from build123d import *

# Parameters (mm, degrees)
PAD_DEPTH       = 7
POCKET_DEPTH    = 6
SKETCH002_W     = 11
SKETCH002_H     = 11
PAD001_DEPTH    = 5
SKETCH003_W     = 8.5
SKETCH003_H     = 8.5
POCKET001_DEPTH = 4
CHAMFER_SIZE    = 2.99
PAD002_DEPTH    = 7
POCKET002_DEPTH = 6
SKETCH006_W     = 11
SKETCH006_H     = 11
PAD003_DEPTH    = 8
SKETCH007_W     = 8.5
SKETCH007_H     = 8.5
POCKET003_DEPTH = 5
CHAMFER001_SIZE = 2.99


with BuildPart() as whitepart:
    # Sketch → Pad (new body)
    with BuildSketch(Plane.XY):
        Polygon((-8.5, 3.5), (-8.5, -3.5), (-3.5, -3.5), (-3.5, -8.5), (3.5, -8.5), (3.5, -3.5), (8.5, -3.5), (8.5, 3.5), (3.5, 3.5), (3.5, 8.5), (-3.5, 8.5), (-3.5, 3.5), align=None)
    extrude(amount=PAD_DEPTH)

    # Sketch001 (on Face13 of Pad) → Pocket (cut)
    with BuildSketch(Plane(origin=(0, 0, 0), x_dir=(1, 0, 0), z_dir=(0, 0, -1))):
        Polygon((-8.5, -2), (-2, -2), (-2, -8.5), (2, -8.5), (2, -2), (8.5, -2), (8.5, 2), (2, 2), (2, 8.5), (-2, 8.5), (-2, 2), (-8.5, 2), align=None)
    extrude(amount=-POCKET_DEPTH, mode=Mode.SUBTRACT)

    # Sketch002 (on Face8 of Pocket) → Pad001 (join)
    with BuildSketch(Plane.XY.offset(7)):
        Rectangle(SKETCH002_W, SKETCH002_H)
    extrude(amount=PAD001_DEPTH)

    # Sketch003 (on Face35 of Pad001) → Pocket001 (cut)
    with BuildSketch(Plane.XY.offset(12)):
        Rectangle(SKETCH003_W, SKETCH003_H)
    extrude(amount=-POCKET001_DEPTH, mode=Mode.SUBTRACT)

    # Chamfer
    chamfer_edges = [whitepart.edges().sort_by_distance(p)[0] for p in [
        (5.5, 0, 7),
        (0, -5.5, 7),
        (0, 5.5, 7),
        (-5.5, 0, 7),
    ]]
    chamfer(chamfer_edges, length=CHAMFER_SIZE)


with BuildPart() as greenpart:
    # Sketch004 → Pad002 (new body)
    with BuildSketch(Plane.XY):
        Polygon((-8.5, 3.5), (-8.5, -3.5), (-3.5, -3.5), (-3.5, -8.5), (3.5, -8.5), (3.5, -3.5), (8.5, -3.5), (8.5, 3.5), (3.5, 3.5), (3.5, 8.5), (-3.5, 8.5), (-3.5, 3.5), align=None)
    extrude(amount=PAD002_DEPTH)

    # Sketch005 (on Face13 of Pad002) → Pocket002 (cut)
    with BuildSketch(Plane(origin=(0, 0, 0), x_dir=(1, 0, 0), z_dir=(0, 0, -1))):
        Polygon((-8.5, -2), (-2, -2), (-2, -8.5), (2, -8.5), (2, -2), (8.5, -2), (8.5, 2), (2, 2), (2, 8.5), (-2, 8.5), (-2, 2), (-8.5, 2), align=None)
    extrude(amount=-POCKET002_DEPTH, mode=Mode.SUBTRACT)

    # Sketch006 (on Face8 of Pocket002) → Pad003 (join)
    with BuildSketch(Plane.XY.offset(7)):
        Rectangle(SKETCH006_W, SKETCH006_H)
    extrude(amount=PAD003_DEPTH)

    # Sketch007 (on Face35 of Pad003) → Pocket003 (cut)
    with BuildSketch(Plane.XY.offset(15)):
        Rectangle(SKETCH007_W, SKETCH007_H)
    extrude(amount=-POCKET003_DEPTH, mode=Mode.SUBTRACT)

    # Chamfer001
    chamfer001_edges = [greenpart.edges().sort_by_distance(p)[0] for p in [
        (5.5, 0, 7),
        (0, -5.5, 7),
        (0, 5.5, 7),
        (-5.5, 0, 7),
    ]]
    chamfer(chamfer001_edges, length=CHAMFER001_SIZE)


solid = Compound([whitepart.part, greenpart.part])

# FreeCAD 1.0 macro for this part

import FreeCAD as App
import Part
import Sketcher
from FreeCAD import Vector
Q = App.Units.Quantity


def edges_at(feature, points):
    """Names of the edges that pass closest to the given points."""
    edges = feature.Shape.Edges
    near = lambda p: min(range(len(edges)), key=lambda i: edges[i].distToShape(Part.Vertex(*p))[0])
    return sorted({f"Edge{near(p) + 1}" for p in points})


def add_polygon(sketch, points):
    """Adds a closed chain of lines whose ends are joined by coincident constraints."""
    first, n = sketch.GeometryCount, len(points)
    for a, b in zip(points, points[1:] + points[:1]):
        sketch.addGeometry(Part.LineSegment(App.Vector(*a, 0), App.Vector(*b, 0)), False)
    for i in range(n):
        sketch.addConstraint(Sketcher.Constraint("Coincident", first + i, 2, first + (i + 1) % n, 1))

doc = App.newDocument("Part")
params = doc.addObject("Spreadsheet::Sheet", "Params")
for row, (alias, value) in enumerate([
    ("sketch1_width", "5 mm"),
    ("sketch1_width2", "7 mm"),
    ("pad1_length", "7 mm"),
    ("sketch2_width", "4 mm"),
    ("sketch2_width2", "6.5 mm"),
    ("pocket1_length", "6 mm"),
    ("sketch3_width", "11 mm"),
    ("pad2_length", "5 mm"),
    ("sketch4_width", "8.5 mm"),
    ("pocket2_length", "4 mm"),
    ("chamfer_size", "2.99 mm"),
    ("sketch5_width", "5 mm"),
    ("sketch5_width2", "7 mm"),
    ("pad3_length", "7 mm"),
    ("sketch6_width", "4 mm"),
    ("sketch6_width2", "6.5 mm"),
    ("pocket3_length", "6 mm"),
    ("sketch7_width", "11 mm"),
    ("pad4_length", "8 mm"),
    ("sketch8_width", "8.5 mm"),
    ("pocket4_length", "5 mm"),
    ("chamfer2_size", "2.99 mm"),
], start=1):
    params.set(f"A{row}", alias)
    params.set(f"B{row}", "=" + value)
    params.setAlias(f"B{row}", alias)

body = doc.addObject("PartDesign::Body", "Body")

# Sketch on XY plane
sketch1 = body.newObject("Sketcher::SketchObject", "Sketch")
sketch1.AttachmentSupport = (doc.getObject("XY_Plane"), [""])
sketch1.MapMode = "FlatFace"
add_polygon(sketch1, [(-8, 4), (-8, -4), (-4, -4), (-4, -8), (4, -8), (4, -4), (8, -4), (8, 4), (4, 4), (4, 8), (-4, 8), (-4, 4)])  # lines 0-11
sketch1.addConstraint(Sketcher.Constraint("Vertical", 0))
sketch1.addConstraint(Sketcher.Constraint("Horizontal", 1))
sketch1.addConstraint(Sketcher.Constraint("Vertical", 2))
sketch1.addConstraint(Sketcher.Constraint("Horizontal", 3))
sketch1.addConstraint(Sketcher.Constraint("Vertical", 4))
sketch1.addConstraint(Sketcher.Constraint("Horizontal", 5))
sketch1.addConstraint(Sketcher.Constraint("Vertical", 6))
sketch1.addConstraint(Sketcher.Constraint("Horizontal", 7))
sketch1.addConstraint(Sketcher.Constraint("Vertical", 8))
sketch1.addConstraint(Sketcher.Constraint("Horizontal", 9))
sketch1.addConstraint(Sketcher.Constraint("Vertical", 10))
sketch1.addConstraint(Sketcher.Constraint("Horizontal", 11))
sketch1.addConstraint(Sketcher.Constraint("Symmetric", 0, 2, 6, 2, -1, 1))
sketch1.addConstraint(Sketcher.Constraint("Symmetric", 2, 2, 8, 2, -1, 1))
sketch1.addConstraint(Sketcher.Constraint("Symmetric", 4, 2, 10, 2, -1, 1))
sketch1.addConstraint(Sketcher.Constraint("Symmetric", 1, 2, 4, 2, -2))
sketch1.addConstraint(Sketcher.Constraint("Equal", 9, 0))
sketch1.addConstraint(Sketcher.Constraint("Equal", 11, 2))
sketch1.addConstraint(Sketcher.Constraint("DistanceX", 1, 1, 1, 2, Q("5 mm")))
sketch1.addConstraint(Sketcher.Constraint("DistanceX", 3, 1, 3, 2, Q("7 mm")))
sketch1.setExpression("Constraints[30]", "Params.sketch1_width")
sketch1.setExpression("Constraints[31]", "Params.sketch1_width2")
pad1 = body.newObject("PartDesign::Pad", "Pad")
pad1.Profile = sketch1
pad1.setExpression("Length", "Params.pad1_length")

# Sketch on XY plane
sketch2 = body.newObject("Sketcher::SketchObject", "Sketch001")
sketch2.AttachmentSupport = (doc.getObject("XY_Plane"), [""])
sketch2.MapMode = "FlatFace"
add_polygon(sketch2, [(-8.5, 2), (-2, 2), (-2, 8.5), (2, 8.5), (2, 2), (8.5, 2), (8.5, -2), (2, -2), (2, -8.5), (-2, -8.5), (-2, -2), (-8.5, -2)])  # lines 0-11
sketch2.addConstraint(Sketcher.Constraint("Horizontal", 0))
sketch2.addConstraint(Sketcher.Constraint("Vertical", 1))
sketch2.addConstraint(Sketcher.Constraint("Horizontal", 2))
sketch2.addConstraint(Sketcher.Constraint("Vertical", 3))
sketch2.addConstraint(Sketcher.Constraint("Horizontal", 4))
sketch2.addConstraint(Sketcher.Constraint("Vertical", 5))
sketch2.addConstraint(Sketcher.Constraint("Horizontal", 6))
sketch2.addConstraint(Sketcher.Constraint("Vertical", 7))
sketch2.addConstraint(Sketcher.Constraint("Horizontal", 8))
sketch2.addConstraint(Sketcher.Constraint("Vertical", 9))
sketch2.addConstraint(Sketcher.Constraint("Horizontal", 10))
sketch2.addConstraint(Sketcher.Constraint("Vertical", 11))
sketch2.addConstraint(Sketcher.Constraint("Symmetric", 0, 2, 6, 2, -1, 1))
sketch2.addConstraint(Sketcher.Constraint("Symmetric", 2, 2, 8, 2, -1, 1))
sketch2.addConstraint(Sketcher.Constraint("Symmetric", 4, 2, 10, 2, -1, 1))
sketch2.addConstraint(Sketcher.Constraint("Symmetric", 0, 2, 3, 2, -2))
sketch2.addConstraint(Sketcher.Constraint("Equal", 10, 1))
sketch2.addConstraint(Sketcher.Constraint("Equal", 8, 5))
sketch2.addConstraint(Sketcher.Constraint("DistanceX", 2, 1, 2, 2, Q("4 mm")))
sketch2.addConstraint(Sketcher.Constraint("DistanceX", 0, 1, 0, 2, Q("6.5 mm")))
sketch2.setExpression("Constraints[30]", "Params.sketch2_width")
sketch2.setExpression("Constraints[31]", "Params.sketch2_width2")
pocket1 = body.newObject("PartDesign::Pocket", "Pocket")
pocket1.Profile = sketch2
pocket1.setExpression("Length", "Params.pocket1_length")
pocket1.Reversed = True

# Sketch on XY plane
sketch3 = body.newObject("Sketcher::SketchObject", "Sketch002")
sketch3.AttachmentSupport = (doc.getObject("XY_Plane"), [""])
sketch3.MapMode = "FlatFace"
sketch3.AttachmentOffset = App.Placement(Vector(0, 0, 7), App.Rotation())
add_polygon(sketch3, [(-6, 6), (-6, -6), (6, -6), (6, 6)])  # lines 0-3
sketch3.addConstraint(Sketcher.Constraint("Vertical", 0))
sketch3.addConstraint(Sketcher.Constraint("Horizontal", 1))
sketch3.addConstraint(Sketcher.Constraint("Vertical", 2))
sketch3.addConstraint(Sketcher.Constraint("Horizontal", 3))
sketch3.addConstraint(Sketcher.Constraint("Symmetric", 0, 2, 2, 2, -1, 1))
sketch3.addConstraint(Sketcher.Constraint("Equal", 3, 0))
sketch3.addConstraint(Sketcher.Constraint("DistanceX", 1, 1, 1, 2, Q("11 mm")))
sketch3.setExpression("Constraints[10]", "Params.sketch3_width")
pad2 = body.newObject("PartDesign::Pad", "Pad001")
pad2.Profile = sketch3
pad2.setExpression("Length", "Params.pad2_length")

# Sketch on XY plane
sketch4 = body.newObject("Sketcher::SketchObject", "Sketch003")
sketch4.AttachmentSupport = (doc.getObject("XY_Plane"), [""])
sketch4.MapMode = "FlatFace"
sketch4.AttachmentOffset = App.Placement(Vector(0, 0, 12), App.Rotation())
add_polygon(sketch4, [(-4, 4), (-4, -4), (4, -4), (4, 4)])  # lines 0-3
sketch4.addConstraint(Sketcher.Constraint("Vertical", 0))
sketch4.addConstraint(Sketcher.Constraint("Horizontal", 1))
sketch4.addConstraint(Sketcher.Constraint("Vertical", 2))
sketch4.addConstraint(Sketcher.Constraint("Horizontal", 3))
sketch4.addConstraint(Sketcher.Constraint("Symmetric", 0, 2, 2, 2, -1, 1))
sketch4.addConstraint(Sketcher.Constraint("Equal", 3, 0))
sketch4.addConstraint(Sketcher.Constraint("DistanceX", 1, 1, 1, 2, Q("8.5 mm")))
sketch4.setExpression("Constraints[10]", "Params.sketch4_width")
pocket2 = body.newObject("PartDesign::Pocket", "Pocket001")
pocket2.Profile = sketch4
pocket2.setExpression("Length", "Params.pocket2_length")
doc.recompute()

chamfer = body.newObject("PartDesign::Chamfer", "Chamfer")
chamfer.Base = (pocket2, edges_at(pocket2, [
    (5.5, 0, 7),
    (0, -5.5, 7),
    (0, 5.5, 7),
    (-5.5, 0, 7),
]))
chamfer.setExpression("Size", "Params.chamfer_size")
body2 = doc.addObject("PartDesign::Body", "Body001")

# Sketch on XY plane
sketch5 = body2.newObject("Sketcher::SketchObject", "Sketch004")
sketch5.AttachmentSupport = (doc.getObject("XY_Plane001"), [""])
sketch5.MapMode = "FlatFace"
add_polygon(sketch5, [(-8, 4), (-8, -4), (-4, -4), (-4, -8), (4, -8), (4, -4), (8, -4), (8, 4), (4, 4), (4, 8), (-4, 8), (-4, 4)])  # lines 0-11
sketch5.addConstraint(Sketcher.Constraint("Vertical", 0))
sketch5.addConstraint(Sketcher.Constraint("Horizontal", 1))
sketch5.addConstraint(Sketcher.Constraint("Vertical", 2))
sketch5.addConstraint(Sketcher.Constraint("Horizontal", 3))
sketch5.addConstraint(Sketcher.Constraint("Vertical", 4))
sketch5.addConstraint(Sketcher.Constraint("Horizontal", 5))
sketch5.addConstraint(Sketcher.Constraint("Vertical", 6))
sketch5.addConstraint(Sketcher.Constraint("Horizontal", 7))
sketch5.addConstraint(Sketcher.Constraint("Vertical", 8))
sketch5.addConstraint(Sketcher.Constraint("Horizontal", 9))
sketch5.addConstraint(Sketcher.Constraint("Vertical", 10))
sketch5.addConstraint(Sketcher.Constraint("Horizontal", 11))
sketch5.addConstraint(Sketcher.Constraint("Symmetric", 0, 2, 6, 2, -1, 1))
sketch5.addConstraint(Sketcher.Constraint("Symmetric", 2, 2, 8, 2, -1, 1))
sketch5.addConstraint(Sketcher.Constraint("Symmetric", 4, 2, 10, 2, -1, 1))
sketch5.addConstraint(Sketcher.Constraint("Symmetric", 1, 2, 4, 2, -2))
sketch5.addConstraint(Sketcher.Constraint("Equal", 9, 0))
sketch5.addConstraint(Sketcher.Constraint("Equal", 11, 2))
sketch5.addConstraint(Sketcher.Constraint("DistanceX", 1, 1, 1, 2, Q("5 mm")))
sketch5.addConstraint(Sketcher.Constraint("DistanceX", 3, 1, 3, 2, Q("7 mm")))
sketch5.setExpression("Constraints[30]", "Params.sketch5_width")
sketch5.setExpression("Constraints[31]", "Params.sketch5_width2")
pad3 = body2.newObject("PartDesign::Pad", "Pad002")
pad3.Profile = sketch5
pad3.setExpression("Length", "Params.pad3_length")

# Sketch on XY plane
sketch6 = body2.newObject("Sketcher::SketchObject", "Sketch005")
sketch6.AttachmentSupport = (doc.getObject("XY_Plane001"), [""])
sketch6.MapMode = "FlatFace"
add_polygon(sketch6, [(-8.5, 2), (-2, 2), (-2, 8.5), (2, 8.5), (2, 2), (8.5, 2), (8.5, -2), (2, -2), (2, -8.5), (-2, -8.5), (-2, -2), (-8.5, -2)])  # lines 0-11
sketch6.addConstraint(Sketcher.Constraint("Horizontal", 0))
sketch6.addConstraint(Sketcher.Constraint("Vertical", 1))
sketch6.addConstraint(Sketcher.Constraint("Horizontal", 2))
sketch6.addConstraint(Sketcher.Constraint("Vertical", 3))
sketch6.addConstraint(Sketcher.Constraint("Horizontal", 4))
sketch6.addConstraint(Sketcher.Constraint("Vertical", 5))
sketch6.addConstraint(Sketcher.Constraint("Horizontal", 6))
sketch6.addConstraint(Sketcher.Constraint("Vertical", 7))
sketch6.addConstraint(Sketcher.Constraint("Horizontal", 8))
sketch6.addConstraint(Sketcher.Constraint("Vertical", 9))
sketch6.addConstraint(Sketcher.Constraint("Horizontal", 10))
sketch6.addConstraint(Sketcher.Constraint("Vertical", 11))
sketch6.addConstraint(Sketcher.Constraint("Symmetric", 0, 2, 6, 2, -1, 1))
sketch6.addConstraint(Sketcher.Constraint("Symmetric", 2, 2, 8, 2, -1, 1))
sketch6.addConstraint(Sketcher.Constraint("Symmetric", 4, 2, 10, 2, -1, 1))
sketch6.addConstraint(Sketcher.Constraint("Symmetric", 0, 2, 3, 2, -2))
sketch6.addConstraint(Sketcher.Constraint("Equal", 10, 1))
sketch6.addConstraint(Sketcher.Constraint("Equal", 8, 5))
sketch6.addConstraint(Sketcher.Constraint("DistanceX", 2, 1, 2, 2, Q("4 mm")))
sketch6.addConstraint(Sketcher.Constraint("DistanceX", 0, 1, 0, 2, Q("6.5 mm")))
sketch6.setExpression("Constraints[30]", "Params.sketch6_width")
sketch6.setExpression("Constraints[31]", "Params.sketch6_width2")
pocket3 = body2.newObject("PartDesign::Pocket", "Pocket002")
pocket3.Profile = sketch6
pocket3.setExpression("Length", "Params.pocket3_length")
pocket3.Reversed = True

# Sketch on XY plane
sketch7 = body2.newObject("Sketcher::SketchObject", "Sketch006")
sketch7.AttachmentSupport = (doc.getObject("XY_Plane001"), [""])
sketch7.MapMode = "FlatFace"
sketch7.AttachmentOffset = App.Placement(Vector(0, 0, 7), App.Rotation())
add_polygon(sketch7, [(-6, 6), (-6, -6), (6, -6), (6, 6)])  # lines 0-3
sketch7.addConstraint(Sketcher.Constraint("Vertical", 0))
sketch7.addConstraint(Sketcher.Constraint("Horizontal", 1))
sketch7.addConstraint(Sketcher.Constraint("Vertical", 2))
sketch7.addConstraint(Sketcher.Constraint("Horizontal", 3))
sketch7.addConstraint(Sketcher.Constraint("Symmetric", 0, 2, 2, 2, -1, 1))
sketch7.addConstraint(Sketcher.Constraint("Equal", 3, 0))
sketch7.addConstraint(Sketcher.Constraint("DistanceX", 1, 1, 1, 2, Q("11 mm")))
sketch7.setExpression("Constraints[10]", "Params.sketch7_width")
pad4 = body2.newObject("PartDesign::Pad", "Pad003")
pad4.Profile = sketch7
pad4.setExpression("Length", "Params.pad4_length")

# Sketch on XY plane
sketch8 = body2.newObject("Sketcher::SketchObject", "Sketch007")
sketch8.AttachmentSupport = (doc.getObject("XY_Plane001"), [""])
sketch8.MapMode = "FlatFace"
sketch8.AttachmentOffset = App.Placement(Vector(0, 0, 15), App.Rotation())
add_polygon(sketch8, [(-4, 4), (-4, -4), (4, -4), (4, 4)])  # lines 0-3
sketch8.addConstraint(Sketcher.Constraint("Vertical", 0))
sketch8.addConstraint(Sketcher.Constraint("Horizontal", 1))
sketch8.addConstraint(Sketcher.Constraint("Vertical", 2))
sketch8.addConstraint(Sketcher.Constraint("Horizontal", 3))
sketch8.addConstraint(Sketcher.Constraint("Symmetric", 0, 2, 2, 2, -1, 1))
sketch8.addConstraint(Sketcher.Constraint("Equal", 3, 0))
sketch8.addConstraint(Sketcher.Constraint("DistanceX", 1, 1, 1, 2, Q("8.5 mm")))
sketch8.setExpression("Constraints[10]", "Params.sketch8_width")
pocket4 = body2.newObject("PartDesign::Pocket", "Pocket003")
pocket4.Profile = sketch8
pocket4.setExpression("Length", "Params.pocket4_length")
doc.recompute()

chamfer2 = body2.newObject("PartDesign::Chamfer", "Chamfer001")
chamfer2.Base = (pocket4, edges_at(pocket4, [
    (5.5, 0, 7),
    (0, -5.5, 7),
    (0, 5.5, 7),
    (-5.5, 0, 7),
]))
chamfer2.setExpression("Size", "Params.chamfer2_size")

doc.recompute()
